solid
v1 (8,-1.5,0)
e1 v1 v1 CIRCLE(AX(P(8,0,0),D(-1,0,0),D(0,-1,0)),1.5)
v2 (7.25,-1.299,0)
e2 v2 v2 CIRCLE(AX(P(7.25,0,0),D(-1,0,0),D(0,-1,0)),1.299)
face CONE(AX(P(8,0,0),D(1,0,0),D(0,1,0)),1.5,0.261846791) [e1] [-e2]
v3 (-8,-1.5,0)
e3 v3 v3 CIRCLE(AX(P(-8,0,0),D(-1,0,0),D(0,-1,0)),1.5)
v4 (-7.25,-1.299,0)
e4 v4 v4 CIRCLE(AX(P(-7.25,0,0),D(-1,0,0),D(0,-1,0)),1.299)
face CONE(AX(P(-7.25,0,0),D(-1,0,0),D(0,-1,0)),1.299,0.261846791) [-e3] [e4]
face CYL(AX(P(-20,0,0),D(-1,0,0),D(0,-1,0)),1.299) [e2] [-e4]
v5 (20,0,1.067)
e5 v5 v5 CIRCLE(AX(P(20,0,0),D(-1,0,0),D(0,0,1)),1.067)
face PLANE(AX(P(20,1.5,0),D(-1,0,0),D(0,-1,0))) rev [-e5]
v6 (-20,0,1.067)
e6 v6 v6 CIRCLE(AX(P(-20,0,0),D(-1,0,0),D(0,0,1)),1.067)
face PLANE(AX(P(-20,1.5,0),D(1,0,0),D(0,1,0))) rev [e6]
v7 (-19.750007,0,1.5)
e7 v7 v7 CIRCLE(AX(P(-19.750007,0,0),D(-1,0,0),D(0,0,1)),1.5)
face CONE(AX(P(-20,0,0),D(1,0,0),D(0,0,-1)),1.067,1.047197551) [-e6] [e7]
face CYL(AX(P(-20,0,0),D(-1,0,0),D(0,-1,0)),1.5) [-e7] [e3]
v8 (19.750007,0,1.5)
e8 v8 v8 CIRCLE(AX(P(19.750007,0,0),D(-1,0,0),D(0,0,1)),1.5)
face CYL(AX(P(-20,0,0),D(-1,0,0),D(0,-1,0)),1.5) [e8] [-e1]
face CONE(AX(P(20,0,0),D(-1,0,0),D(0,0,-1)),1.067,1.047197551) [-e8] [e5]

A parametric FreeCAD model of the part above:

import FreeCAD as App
import Part
import Sketcher
Q = App.Units.Quantity


def add_polygon(sketch, points):
    """Adds a closed chain of lines whose ends are joined by coincident constraints."""
    first, n = sketch.GeometryCount, len(points)
    for a, b in zip(points, points[1:] + points[:1]):
        sketch.addGeometry(Part.LineSegment(App.Vector(*a, 0), App.Vector(*b, 0)), False)
    for i in range(n):
        sketch.addConstraint(Sketcher.Constraint("Coincident", first + i, 2, first + (i + 1) % n, 1))

doc = App.newDocument("Part")
body = doc.addObject("PartDesign::Body", "Body")

sketch1 = body.newObject("Sketcher::SketchObject", "Sketch")
sketch1.AttachmentSupport = (doc.getObject("XY_Plane"), [""])
sketch1.MapMode = "FlatFace"
add_polygon(sketch1, [(-8, 1.5), (-20, 1.5), (-20, 0), (20, 0), (20, 1.5), (8, 1.5), (7.25, 1.299), (-7.25, 1.299)])
sketch1.addConstraint(Sketcher.Constraint("Horizontal", 0))
sketch1.addConstraint(Sketcher.Constraint("Vertical", 1))
sketch1.addConstraint(Sketcher.Constraint("Horizontal", 2))
sketch1.addConstraint(Sketcher.Constraint("Vertical", 3))
sketch1.addConstraint(Sketcher.Constraint("Horizontal", 4))
sketch1.addConstraint(Sketcher.Constraint("Horizontal", 6))
sketch1.addConstraint(Sketcher.Constraint("Symmetric", 1, 2, 2, 2, -1, 1))
sketch1.addConstraint(Sketcher.Constraint("Symmetric", 4, 2, 7, 2, -2))
sketch1.addConstraint(Sketcher.Constraint("Equal", 5, 7))
sketch1.addConstraint(Sketcher.Constraint("DistanceX", 0, 2, 0, 1, Q("12 mm")))
sketch1.addConstraint(Sketcher.Constraint("DistanceX", 2, 1, 2, 2, Q("40 mm")))
sketch1.addConstraint(Sketcher.Constraint("DistanceX", 6, 2, 6, 1, Q("14.5 mm")))
sketch1.addConstraint(Sketcher.Constraint("DistanceY", 1, 2, 1, 1, Q("1.5 mm")))
sketch1.addConstraint(Sketcher.Constraint("DistanceY", -1, 1, 5, 2, Q("1.299 mm")))
revolution = body.newObject("PartDesign::Revolution", "Revolution")
revolution.Profile = sketch1
revolution.ReferenceAxis = (sketch1, ["H_Axis"])
revolution.Angle = 360

sketch2 = body.newObject("Sketcher::SketchObject", "Sketch001")
sketch2.AttachmentSupport = (doc.getObject("XY_Plane"), [""])
sketch2.MapMode = "FlatFace"
add_polygon(sketch2, [(-19.750007, 1.5), (-20.249993, 1.5), (-20, 1.067)])
sketch2.addConstraint(Sketcher.Constraint("Horizontal", 0))
sketch2.addConstraint(Sketcher.Constraint("Equal", 1, 2))
sketch2.addConstraint(Sketcher.Constraint("Angle", 1, Q("-60 deg")))
sketch2.addConstraint(Sketcher.Constraint("DistanceX", 1, 2, -1, 1, Q("20 mm")))
sketch2.addConstraint(Sketcher.Constraint("DistanceY", -1, 1, 0, 2, Q("1.5 mm")))
sketch2.addConstraint(Sketcher.Constraint("DistanceY", -1, 1, 1, 2, Q("1.067 mm")))
groove = body.newObject("PartDesign::Groove", "Groove")
groove.Profile = sketch2
groove.ReferenceAxis = (sketch2, ["H_Axis"])
groove.Angle = 360
doc.recompute()

mirrored = body.newObject("PartDesign::Mirrored", "Mirrored")
mirrored.Originals = [groove]
mirrored.MirrorPlane = (doc.getObject("YZ_Plane"), [""])
body.Tip = mirrored

doc.recompute()
